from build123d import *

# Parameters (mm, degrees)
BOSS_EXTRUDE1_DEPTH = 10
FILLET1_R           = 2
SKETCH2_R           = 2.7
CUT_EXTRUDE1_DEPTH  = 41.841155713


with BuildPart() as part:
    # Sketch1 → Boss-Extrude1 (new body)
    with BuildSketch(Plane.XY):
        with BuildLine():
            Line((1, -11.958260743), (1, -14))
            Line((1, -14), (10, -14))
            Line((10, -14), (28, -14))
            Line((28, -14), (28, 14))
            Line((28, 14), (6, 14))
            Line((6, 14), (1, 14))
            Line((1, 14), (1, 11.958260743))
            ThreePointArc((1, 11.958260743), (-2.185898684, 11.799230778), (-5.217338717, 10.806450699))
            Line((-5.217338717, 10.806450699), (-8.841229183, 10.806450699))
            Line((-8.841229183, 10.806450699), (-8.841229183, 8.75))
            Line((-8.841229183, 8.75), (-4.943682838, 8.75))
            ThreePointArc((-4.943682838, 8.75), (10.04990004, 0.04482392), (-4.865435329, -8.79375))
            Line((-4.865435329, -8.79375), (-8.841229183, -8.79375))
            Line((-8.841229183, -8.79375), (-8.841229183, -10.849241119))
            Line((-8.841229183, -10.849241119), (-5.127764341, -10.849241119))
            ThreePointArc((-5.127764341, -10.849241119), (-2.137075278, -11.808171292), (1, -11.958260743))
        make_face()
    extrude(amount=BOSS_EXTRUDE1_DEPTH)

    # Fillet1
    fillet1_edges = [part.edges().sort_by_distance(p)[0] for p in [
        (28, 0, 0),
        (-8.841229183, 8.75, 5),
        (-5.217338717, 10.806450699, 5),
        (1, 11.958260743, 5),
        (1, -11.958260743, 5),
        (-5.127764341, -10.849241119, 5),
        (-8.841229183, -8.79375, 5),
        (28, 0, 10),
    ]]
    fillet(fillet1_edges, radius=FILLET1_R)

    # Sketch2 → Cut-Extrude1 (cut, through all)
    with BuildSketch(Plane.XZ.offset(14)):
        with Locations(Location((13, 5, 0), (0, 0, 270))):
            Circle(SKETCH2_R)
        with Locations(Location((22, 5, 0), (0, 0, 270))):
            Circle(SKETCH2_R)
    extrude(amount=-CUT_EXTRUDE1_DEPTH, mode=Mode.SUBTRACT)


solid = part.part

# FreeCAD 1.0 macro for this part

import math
import FreeCAD as App
import Part
import Sketcher
Q = App.Units.Quantity


def edges_at(feature, points):
    """Names of the edges that pass closest to the given points."""
    edges = feature.Shape.Edges
    near = lambda p: min(range(len(edges)), key=lambda i: edges[i].distToShape(Part.Vertex(*p))[0])
    return sorted({f"Edge{near(p) + 1}" for p in points})

doc = App.newDocument("Part")
body = doc.addObject("PartDesign::Body", "Body")

sketch1 = body.newObject("Sketcher::SketchObject", "Sketch")
sketch1.AttachmentSupport = (doc.getObject("XY_Plane"), [""])
sketch1.MapMode = "FlatFace"
sketch1.addGeometry([
    Part.LineSegment(App.Vector(1, -12, 0), App.Vector(1, -14, 0)),
    Part.LineSegment(App.Vector(1, -14, 0), App.Vector(28, -14, 0)),
    Part.LineSegment(App.Vector(28, -14, 0), App.Vector(28, 14, 0)),
    Part.LineSegment(App.Vector(28, 14, 0), App.Vector(1, 14, 0)),
    Part.LineSegment(App.Vector(1, 14, 0), App.Vector(1, 12, 0)),
    Part.ArcOfCircle(Part.Circle(App.Vector(0, 0, 0), App.Vector(0, 0, 1), 12), math.radians(85), math.radians(116)),
    Part.LineSegment(App.Vector(-5.2, 10.8, 0), App.Vector(-8.8, 10.8, 0)),
    Part.LineSegment(App.Vector(-8.8, 10.8, 0), App.Vector(-8.8, 8.8, 0)),
    Part.LineSegment(App.Vector(-8.8, 8.8, 0), App.Vector(-4.9, 8.8, 0)),
    Part.ArcOfCircle(Part.Circle(App.Vector(0, 0, 0), App.Vector(0, 0, 1), 10.1), math.radians(-119), math.radians(119)),
    Part.LineSegment(App.Vector(-4.9, -8.8, 0), App.Vector(-8.8, -8.8, 0)),
    Part.LineSegment(App.Vector(-8.8, -8.8, 0), App.Vector(-8.8, -10.8, 0)),
    Part.LineSegment(App.Vector(-8.8, -10.8, 0), App.Vector(-5.1, -10.8, 0)),
    Part.ArcOfCircle(Part.Circle(App.Vector(0, 0, 0), App.Vector(0, 0, 1), 12), math.radians(-115), math.radians(-85)),
], False)
sketch1.addConstraint([
    Sketcher.Constraint("Coincident", 0, 2, 1, 1),
    Sketcher.Constraint("Coincident", 1, 2, 2, 1),
    Sketcher.Constraint("Coincident", 2, 2, 3, 1),
    Sketcher.Constraint("Coincident", 3, 2, 4, 1),
    Sketcher.Constraint("Coincident", 4, 2, 5, 1),
    Sketcher.Constraint("Coincident", 5, 2, 6, 1),
    Sketcher.Constraint("Coincident", 6, 2, 7, 1),
    Sketcher.Constraint("Coincident", 7, 2, 8, 1),
    Sketcher.Constraint("Coincident", 8, 2, 9, 2),
    Sketcher.Constraint("Coincident", 9, 1, 10, 1),
    Sketcher.Constraint("Coincident", 10, 2, 11, 1),
    Sketcher.Constraint("Coincident", 11, 2, 12, 1),
    Sketcher.Constraint("Coincident", 12, 2, 13, 1),
    Sketcher.Constraint("Coincident", 13, 2, 0, 1),
    Sketcher.Constraint("Vertical", 0),
    Sketcher.Constraint("Horizontal", 1),
    Sketcher.Constraint("Vertical", 2),
    Sketcher.Constraint("Horizontal", 3),
    Sketcher.Constraint("Vertical", 4),
    Sketcher.Constraint("Horizontal", 6),
    Sketcher.Constraint("Vertical", 7),
    Sketcher.Constraint("Horizontal", 8),
    Sketcher.Constraint("Horizontal", 10),
    Sketcher.Constraint("Vertical", 11),
    Sketcher.Constraint("Horizontal", 12),
    Sketcher.Constraint("Coincident", 5, 3, -1, 1),
    Sketcher.Constraint("Coincident", 9, 3, -1, 1),
    Sketcher.Constraint("Coincident", 13, 3, -1, 1),
    Sketcher.Constraint("Equal", 5, 13),
    Sketcher.Constraint("Symmetric", 0, 2, 3, 2, -1),
    Sketcher.Constraint("Vertical", 7, 2, 10, 2),
    Sketcher.Constraint("Radius", 5, Q("12 mm")),
    Sketcher.Constraint("DistanceX", 1, 1, 1, 2, Q("27 mm")),
    Sketcher.Constraint("DistanceY", 2, 1, 2, 2, Q("28 mm")),
    Sketcher.Constraint("Radius", 9, Q("10.05 mm")),
    Sketcher.Constraint("DistanceX", -1, 1, 0, 2, Q("1 mm")),
    Sketcher.Constraint("DistanceY", -1, 1, 7, 2, Q("8.75 mm")),
    Sketcher.Constraint("DistanceX", 6, 2, 6, 1, Q("3.62389 mm")),
    Sketcher.Constraint("DistanceY", 7, 2, 7, 1, Q("2.056451 mm")),
    Sketcher.Constraint("DistanceY", 11, 2, 11, 1, Q("2.055491 mm")),
    Sketcher.Constraint("DistanceX", 10, 2, 10, 1, Q("3.975794 mm")),
])
pad1 = body.newObject("PartDesign::Pad", "Pad")
pad1.Profile = sketch1
pad1.Length = 10
doc.recompute()

fillet = body.newObject("PartDesign::Fillet", "Fillet")
fillet.Base = (pad1, edges_at(pad1, [
    (28, 0, 0),
    (-8.841, 8.75, 5),
    (-5.217, 10.806, 5),
    (1, 11.958, 5),
    (1, -11.958, 5),
    (-5.128, -10.849, 5),
    (-8.841, -8.794, 5),
    (28, 0, 10),
]))
fillet.Radius = 2

sketch2 = body.newObject("Sketcher::SketchObject", "Sketch001")
sketch2.AttachmentSupport = (doc.getObject("XZ_Plane"), [""])
sketch2.MapMode = "FlatFace"
sketch2.AttachmentOffset = App.Placement(App.Vector(0, 0, 14), App.Rotation())
sketch2.addGeometry([
    Part.Circle(App.Vector(13, 5, 0), App.Vector(0, 0, 1), 2.7),
    Part.Circle(App.Vector(22, 5, 0), App.Vector(0, 0, 1), 2.7),
], False)
sketch2.addConstraint([
    Sketcher.Constraint("Equal", 0, 1),
    Sketcher.Constraint("Horizontal", 0, 3, 1, 3),
    Sketcher.Constraint("Diameter", 0, Q("5.4 mm")),
    Sketcher.Constraint("DistanceX", -1, 1, 0, 3, Q("13 mm")),
    Sketcher.Constraint("DistanceY", -1, 1, 0, 3, Q("5 mm")),
    Sketcher.Constraint("DistanceX", -1, 1, 1, 3, Q("22 mm")),
])
pocket1 = body.newObject("PartDesign::Pocket", "Pocket")
pocket1.Profile = sketch2
pocket1.Type = "ThroughAll"

doc.recompute()
